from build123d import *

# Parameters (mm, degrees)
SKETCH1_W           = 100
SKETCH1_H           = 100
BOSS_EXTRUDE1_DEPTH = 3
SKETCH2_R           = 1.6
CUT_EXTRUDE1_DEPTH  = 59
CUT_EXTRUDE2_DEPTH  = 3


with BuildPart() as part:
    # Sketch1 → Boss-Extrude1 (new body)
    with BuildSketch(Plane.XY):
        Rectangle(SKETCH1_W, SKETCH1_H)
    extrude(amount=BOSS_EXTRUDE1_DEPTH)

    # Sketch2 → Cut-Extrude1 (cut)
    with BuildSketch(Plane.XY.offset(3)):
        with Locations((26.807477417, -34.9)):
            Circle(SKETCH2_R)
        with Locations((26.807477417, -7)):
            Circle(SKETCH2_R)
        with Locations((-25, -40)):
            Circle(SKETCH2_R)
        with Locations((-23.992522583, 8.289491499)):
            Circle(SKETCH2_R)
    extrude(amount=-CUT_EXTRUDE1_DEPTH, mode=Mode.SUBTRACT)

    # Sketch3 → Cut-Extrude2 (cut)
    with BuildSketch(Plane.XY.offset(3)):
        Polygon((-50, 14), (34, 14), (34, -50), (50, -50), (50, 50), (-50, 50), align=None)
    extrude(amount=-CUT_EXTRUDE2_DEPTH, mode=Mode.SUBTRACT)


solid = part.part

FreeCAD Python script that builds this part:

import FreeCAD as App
import Part
import Sketcher

V = App.Vector

doc = App.newDocument("Part")
params = doc.addObject("Spreadsheet::Sheet", "Params")
for row, (alias, value) in enumerate([
    ("sketch1_width", "100 mm"),
    ("pad1_length", "3 mm"),
    ("sketch2_diameter", "3.2 mm"),
    ("pocket1_length", "59 mm"),
    ("sketch3_width", "84 mm"),
    ("sketch3_width2", "16 mm"),
    ("sketch3_height", "64 mm"),
    ("pocket2_length", "3 mm"),
], start=1):
    params.set(f"A{row}", alias)
    params.set(f"B{row}", "=" + value)
    params.setAlias(f"B{row}", alias)

body = doc.addObject("PartDesign::Body", "Body")

sketch1 = doc.addObject("Sketcher::SketchObject", "Sketch")
body.addObject(sketch1)
sketch1.AttachmentSupport = (doc.XY_Plane, [""])
sketch1.MapMode = "FlatFace"
sketch1.addGeometry(Part.LineSegment(V(-50, 50, 0), V(-50, -50, 0)), False)
sketch1.addGeometry(Part.LineSegment(V(-50, -50, 0), V(50, -50, 0)), False)
sketch1.addGeometry(Part.LineSegment(V(50, -50, 0), V(50, 50, 0)), False)
sketch1.addGeometry(Part.LineSegment(V(50, 50, 0), V(-50, 50, 0)), False)
sketch1.addConstraint(Sketcher.Constraint("Coincident", 0, 2, 1, 1))
sketch1.addConstraint(Sketcher.Constraint("Coincident", 1, 2, 2, 1))
sketch1.addConstraint(Sketcher.Constraint("Coincident", 2, 2, 3, 1))
sketch1.addConstraint(Sketcher.Constraint("Coincident", 3, 2, 0, 1))
sketch1.addConstraint(Sketcher.Constraint("Vertical", 0))
sketch1.addConstraint(Sketcher.Constraint("Horizontal", 1))
sketch1.addConstraint(Sketcher.Constraint("Vertical", 2))
sketch1.addConstraint(Sketcher.Constraint("Horizontal", 3))
sketch1.addConstraint(Sketcher.Constraint("Symmetric", 0, 2, 2, 2, -1, 1))
sketch1.addConstraint(Sketcher.Constraint("Equal", 3, 0))
sketch1.addConstraint(Sketcher.Constraint("DistanceX", 1, 1, 1, 2, 100.0))
sketch1.setExpression("Constraints[10]", "Params.sketch1_width")
pad1 = doc.addObject("PartDesign::Pad", "Pad")
body.addObject(pad1)
pad1.Profile = sketch1
pad1.setExpression("Length", "Params.pad1_length")

sketch2 = doc.addObject("Sketcher::SketchObject", "Sketch001")
body.addObject(sketch2)
sketch2.AttachmentSupport = (doc.XY_Plane, [""])
sketch2.MapMode = "FlatFace"
sketch2.AttachmentOffset = App.Placement(V(0, 0, 3), App.Rotation())
sketch2.addGeometry(Part.Circle(V(26.807477, -34.9, 0), V(0, 0, 1), 1.6), False)
sketch2.addGeometry(Part.Circle(V(26.807477, -7, 0), V(0, 0, 1), 1.6), False)
sketch2.addGeometry(Part.Circle(V(-25, -40, 0), V(0, 0, 1), 1.6), False)
sketch2.addGeometry(Part.Circle(V(-23.992523, 8.289491, 0), V(0, 0, 1), 1.6), False)
sketch2.addConstraint(Sketcher.Constraint("Equal", 0, 1))
sketch2.addConstraint(Sketcher.Constraint("Equal", 1, 2))
sketch2.addConstraint(Sketcher.Constraint("Equal", 2, 3))
sketch2.addConstraint(Sketcher.Constraint("Vertical", 0, 3, 1, 3))
sketch2.addConstraint(Sketcher.Constraint("Diameter", 0, 3.2))
sketch2.addConstraint(Sketcher.Constraint("DistanceY", 1, 3, -1, 1, 7.0))
sketch2.addConstraint(Sketcher.Constraint("DistanceX", 2, 3, -1, 1, 25.0))
sketch2.addConstraint(Sketcher.Constraint("DistanceY", 2, 3, -1, 1, 40.0))
sketch2.addConstraint(Sketcher.Constraint("DistanceY", 0, 3, -1, 1, 34.9))
sketch2.addConstraint(Sketcher.Constraint("DistanceX", 3, 3, 1, 3, 50.8))
sketch2.addConstraint(Sketcher.Constraint("DistanceY", -1, 1, 3, 3, 8.289491))
sketch2.addConstraint(Sketcher.Constraint("DistanceX", -1, 1, 0, 3, 26.807477))
sketch2.setExpression("Constraints[4]", "Params.sketch2_diameter")
pocket1 = doc.addObject("PartDesign::Pocket", "Pocket")
body.addObject(pocket1)
pocket1.Profile = sketch2
pocket1.setExpression("Length", "Params.pocket1_length")

sketch3 = doc.addObject("Sketcher::SketchObject", "Sketch002")
body.addObject(sketch3)
sketch3.AttachmentSupport = (doc.XY_Plane, [""])
sketch3.MapMode = "FlatFace"
sketch3.AttachmentOffset = App.Placement(V(0, 0, 3), App.Rotation())
sketch3.addGeometry(Part.LineSegment(V(-50, 14, 0), V(34, 14, 0)), False)
sketch3.addGeometry(Part.LineSegment(V(34, 14, 0), V(34, -50, 0)), False)
sketch3.addGeometry(Part.LineSegment(V(34, -50, 0), V(50, -50, 0)), False)
sketch3.addGeometry(Part.LineSegment(V(50, -50, 0), V(50, 50, 0)), False)
sketch3.addGeometry(Part.LineSegment(V(50, 50, 0), V(-50, 50, 0)), False)
sketch3.addGeometry(Part.LineSegment(V(-50, 50, 0), V(-50, 14, 0)), False)
sketch3.addConstraint(Sketcher.Constraint("Coincident", 0, 2, 1, 1))
sketch3.addConstraint(Sketcher.Constraint("Coincident", 1, 2, 2, 1))
sketch3.addConstraint(Sketcher.Constraint("Coincident", 2, 2, 3, 1))
sketch3.addConstraint(Sketcher.Constraint("Coincident", 3, 2, 4, 1))
sketch3.addConstraint(Sketcher.Constraint("Coincident", 4, 2, 5, 1))
sketch3.addConstraint(Sketcher.Constraint("Coincident", 5, 2, 0, 1))
sketch3.addConstraint(Sketcher.Constraint("Horizontal", 0))
sketch3.addConstraint(Sketcher.Constraint("Vertical", 1))
sketch3.addConstraint(Sketcher.Constraint("Horizontal", 2))
sketch3.addConstraint(Sketcher.Constraint("Vertical", 3))
sketch3.addConstraint(Sketcher.Constraint("Horizontal", 4))
sketch3.addConstraint(Sketcher.Constraint("Vertical", 5))
sketch3.addConstraint(Sketcher.Constraint("Symmetric", 2, 2, 4, 2, -1, 1))
sketch3.addConstraint(Sketcher.Constraint("Equal", 4, 3))
sketch3.addConstraint(Sketcher.Constraint("DistanceX", 0, 1, 0, 2, 84.0))
sketch3.addConstraint(Sketcher.Constraint("DistanceX", 2, 1, 2, 2, 16.0))
sketch3.addConstraint(Sketcher.Constraint("DistanceY", 1, 2, 1, 1, 64.0))
sketch3.setExpression("Constraints[14]", "Params.sketch3_width")
sketch3.setExpression("Constraints[15]", "Params.sketch3_width2")
sketch3.setExpression("Constraints[16]", "Params.sketch3_height")
pocket2 = doc.addObject("PartDesign::Pocket", "Pocket001")
body.addObject(pocket2)
pocket2.Profile = sketch3
pocket2.setExpression("Length", "Params.pocket2_length")

doc.recompute()
